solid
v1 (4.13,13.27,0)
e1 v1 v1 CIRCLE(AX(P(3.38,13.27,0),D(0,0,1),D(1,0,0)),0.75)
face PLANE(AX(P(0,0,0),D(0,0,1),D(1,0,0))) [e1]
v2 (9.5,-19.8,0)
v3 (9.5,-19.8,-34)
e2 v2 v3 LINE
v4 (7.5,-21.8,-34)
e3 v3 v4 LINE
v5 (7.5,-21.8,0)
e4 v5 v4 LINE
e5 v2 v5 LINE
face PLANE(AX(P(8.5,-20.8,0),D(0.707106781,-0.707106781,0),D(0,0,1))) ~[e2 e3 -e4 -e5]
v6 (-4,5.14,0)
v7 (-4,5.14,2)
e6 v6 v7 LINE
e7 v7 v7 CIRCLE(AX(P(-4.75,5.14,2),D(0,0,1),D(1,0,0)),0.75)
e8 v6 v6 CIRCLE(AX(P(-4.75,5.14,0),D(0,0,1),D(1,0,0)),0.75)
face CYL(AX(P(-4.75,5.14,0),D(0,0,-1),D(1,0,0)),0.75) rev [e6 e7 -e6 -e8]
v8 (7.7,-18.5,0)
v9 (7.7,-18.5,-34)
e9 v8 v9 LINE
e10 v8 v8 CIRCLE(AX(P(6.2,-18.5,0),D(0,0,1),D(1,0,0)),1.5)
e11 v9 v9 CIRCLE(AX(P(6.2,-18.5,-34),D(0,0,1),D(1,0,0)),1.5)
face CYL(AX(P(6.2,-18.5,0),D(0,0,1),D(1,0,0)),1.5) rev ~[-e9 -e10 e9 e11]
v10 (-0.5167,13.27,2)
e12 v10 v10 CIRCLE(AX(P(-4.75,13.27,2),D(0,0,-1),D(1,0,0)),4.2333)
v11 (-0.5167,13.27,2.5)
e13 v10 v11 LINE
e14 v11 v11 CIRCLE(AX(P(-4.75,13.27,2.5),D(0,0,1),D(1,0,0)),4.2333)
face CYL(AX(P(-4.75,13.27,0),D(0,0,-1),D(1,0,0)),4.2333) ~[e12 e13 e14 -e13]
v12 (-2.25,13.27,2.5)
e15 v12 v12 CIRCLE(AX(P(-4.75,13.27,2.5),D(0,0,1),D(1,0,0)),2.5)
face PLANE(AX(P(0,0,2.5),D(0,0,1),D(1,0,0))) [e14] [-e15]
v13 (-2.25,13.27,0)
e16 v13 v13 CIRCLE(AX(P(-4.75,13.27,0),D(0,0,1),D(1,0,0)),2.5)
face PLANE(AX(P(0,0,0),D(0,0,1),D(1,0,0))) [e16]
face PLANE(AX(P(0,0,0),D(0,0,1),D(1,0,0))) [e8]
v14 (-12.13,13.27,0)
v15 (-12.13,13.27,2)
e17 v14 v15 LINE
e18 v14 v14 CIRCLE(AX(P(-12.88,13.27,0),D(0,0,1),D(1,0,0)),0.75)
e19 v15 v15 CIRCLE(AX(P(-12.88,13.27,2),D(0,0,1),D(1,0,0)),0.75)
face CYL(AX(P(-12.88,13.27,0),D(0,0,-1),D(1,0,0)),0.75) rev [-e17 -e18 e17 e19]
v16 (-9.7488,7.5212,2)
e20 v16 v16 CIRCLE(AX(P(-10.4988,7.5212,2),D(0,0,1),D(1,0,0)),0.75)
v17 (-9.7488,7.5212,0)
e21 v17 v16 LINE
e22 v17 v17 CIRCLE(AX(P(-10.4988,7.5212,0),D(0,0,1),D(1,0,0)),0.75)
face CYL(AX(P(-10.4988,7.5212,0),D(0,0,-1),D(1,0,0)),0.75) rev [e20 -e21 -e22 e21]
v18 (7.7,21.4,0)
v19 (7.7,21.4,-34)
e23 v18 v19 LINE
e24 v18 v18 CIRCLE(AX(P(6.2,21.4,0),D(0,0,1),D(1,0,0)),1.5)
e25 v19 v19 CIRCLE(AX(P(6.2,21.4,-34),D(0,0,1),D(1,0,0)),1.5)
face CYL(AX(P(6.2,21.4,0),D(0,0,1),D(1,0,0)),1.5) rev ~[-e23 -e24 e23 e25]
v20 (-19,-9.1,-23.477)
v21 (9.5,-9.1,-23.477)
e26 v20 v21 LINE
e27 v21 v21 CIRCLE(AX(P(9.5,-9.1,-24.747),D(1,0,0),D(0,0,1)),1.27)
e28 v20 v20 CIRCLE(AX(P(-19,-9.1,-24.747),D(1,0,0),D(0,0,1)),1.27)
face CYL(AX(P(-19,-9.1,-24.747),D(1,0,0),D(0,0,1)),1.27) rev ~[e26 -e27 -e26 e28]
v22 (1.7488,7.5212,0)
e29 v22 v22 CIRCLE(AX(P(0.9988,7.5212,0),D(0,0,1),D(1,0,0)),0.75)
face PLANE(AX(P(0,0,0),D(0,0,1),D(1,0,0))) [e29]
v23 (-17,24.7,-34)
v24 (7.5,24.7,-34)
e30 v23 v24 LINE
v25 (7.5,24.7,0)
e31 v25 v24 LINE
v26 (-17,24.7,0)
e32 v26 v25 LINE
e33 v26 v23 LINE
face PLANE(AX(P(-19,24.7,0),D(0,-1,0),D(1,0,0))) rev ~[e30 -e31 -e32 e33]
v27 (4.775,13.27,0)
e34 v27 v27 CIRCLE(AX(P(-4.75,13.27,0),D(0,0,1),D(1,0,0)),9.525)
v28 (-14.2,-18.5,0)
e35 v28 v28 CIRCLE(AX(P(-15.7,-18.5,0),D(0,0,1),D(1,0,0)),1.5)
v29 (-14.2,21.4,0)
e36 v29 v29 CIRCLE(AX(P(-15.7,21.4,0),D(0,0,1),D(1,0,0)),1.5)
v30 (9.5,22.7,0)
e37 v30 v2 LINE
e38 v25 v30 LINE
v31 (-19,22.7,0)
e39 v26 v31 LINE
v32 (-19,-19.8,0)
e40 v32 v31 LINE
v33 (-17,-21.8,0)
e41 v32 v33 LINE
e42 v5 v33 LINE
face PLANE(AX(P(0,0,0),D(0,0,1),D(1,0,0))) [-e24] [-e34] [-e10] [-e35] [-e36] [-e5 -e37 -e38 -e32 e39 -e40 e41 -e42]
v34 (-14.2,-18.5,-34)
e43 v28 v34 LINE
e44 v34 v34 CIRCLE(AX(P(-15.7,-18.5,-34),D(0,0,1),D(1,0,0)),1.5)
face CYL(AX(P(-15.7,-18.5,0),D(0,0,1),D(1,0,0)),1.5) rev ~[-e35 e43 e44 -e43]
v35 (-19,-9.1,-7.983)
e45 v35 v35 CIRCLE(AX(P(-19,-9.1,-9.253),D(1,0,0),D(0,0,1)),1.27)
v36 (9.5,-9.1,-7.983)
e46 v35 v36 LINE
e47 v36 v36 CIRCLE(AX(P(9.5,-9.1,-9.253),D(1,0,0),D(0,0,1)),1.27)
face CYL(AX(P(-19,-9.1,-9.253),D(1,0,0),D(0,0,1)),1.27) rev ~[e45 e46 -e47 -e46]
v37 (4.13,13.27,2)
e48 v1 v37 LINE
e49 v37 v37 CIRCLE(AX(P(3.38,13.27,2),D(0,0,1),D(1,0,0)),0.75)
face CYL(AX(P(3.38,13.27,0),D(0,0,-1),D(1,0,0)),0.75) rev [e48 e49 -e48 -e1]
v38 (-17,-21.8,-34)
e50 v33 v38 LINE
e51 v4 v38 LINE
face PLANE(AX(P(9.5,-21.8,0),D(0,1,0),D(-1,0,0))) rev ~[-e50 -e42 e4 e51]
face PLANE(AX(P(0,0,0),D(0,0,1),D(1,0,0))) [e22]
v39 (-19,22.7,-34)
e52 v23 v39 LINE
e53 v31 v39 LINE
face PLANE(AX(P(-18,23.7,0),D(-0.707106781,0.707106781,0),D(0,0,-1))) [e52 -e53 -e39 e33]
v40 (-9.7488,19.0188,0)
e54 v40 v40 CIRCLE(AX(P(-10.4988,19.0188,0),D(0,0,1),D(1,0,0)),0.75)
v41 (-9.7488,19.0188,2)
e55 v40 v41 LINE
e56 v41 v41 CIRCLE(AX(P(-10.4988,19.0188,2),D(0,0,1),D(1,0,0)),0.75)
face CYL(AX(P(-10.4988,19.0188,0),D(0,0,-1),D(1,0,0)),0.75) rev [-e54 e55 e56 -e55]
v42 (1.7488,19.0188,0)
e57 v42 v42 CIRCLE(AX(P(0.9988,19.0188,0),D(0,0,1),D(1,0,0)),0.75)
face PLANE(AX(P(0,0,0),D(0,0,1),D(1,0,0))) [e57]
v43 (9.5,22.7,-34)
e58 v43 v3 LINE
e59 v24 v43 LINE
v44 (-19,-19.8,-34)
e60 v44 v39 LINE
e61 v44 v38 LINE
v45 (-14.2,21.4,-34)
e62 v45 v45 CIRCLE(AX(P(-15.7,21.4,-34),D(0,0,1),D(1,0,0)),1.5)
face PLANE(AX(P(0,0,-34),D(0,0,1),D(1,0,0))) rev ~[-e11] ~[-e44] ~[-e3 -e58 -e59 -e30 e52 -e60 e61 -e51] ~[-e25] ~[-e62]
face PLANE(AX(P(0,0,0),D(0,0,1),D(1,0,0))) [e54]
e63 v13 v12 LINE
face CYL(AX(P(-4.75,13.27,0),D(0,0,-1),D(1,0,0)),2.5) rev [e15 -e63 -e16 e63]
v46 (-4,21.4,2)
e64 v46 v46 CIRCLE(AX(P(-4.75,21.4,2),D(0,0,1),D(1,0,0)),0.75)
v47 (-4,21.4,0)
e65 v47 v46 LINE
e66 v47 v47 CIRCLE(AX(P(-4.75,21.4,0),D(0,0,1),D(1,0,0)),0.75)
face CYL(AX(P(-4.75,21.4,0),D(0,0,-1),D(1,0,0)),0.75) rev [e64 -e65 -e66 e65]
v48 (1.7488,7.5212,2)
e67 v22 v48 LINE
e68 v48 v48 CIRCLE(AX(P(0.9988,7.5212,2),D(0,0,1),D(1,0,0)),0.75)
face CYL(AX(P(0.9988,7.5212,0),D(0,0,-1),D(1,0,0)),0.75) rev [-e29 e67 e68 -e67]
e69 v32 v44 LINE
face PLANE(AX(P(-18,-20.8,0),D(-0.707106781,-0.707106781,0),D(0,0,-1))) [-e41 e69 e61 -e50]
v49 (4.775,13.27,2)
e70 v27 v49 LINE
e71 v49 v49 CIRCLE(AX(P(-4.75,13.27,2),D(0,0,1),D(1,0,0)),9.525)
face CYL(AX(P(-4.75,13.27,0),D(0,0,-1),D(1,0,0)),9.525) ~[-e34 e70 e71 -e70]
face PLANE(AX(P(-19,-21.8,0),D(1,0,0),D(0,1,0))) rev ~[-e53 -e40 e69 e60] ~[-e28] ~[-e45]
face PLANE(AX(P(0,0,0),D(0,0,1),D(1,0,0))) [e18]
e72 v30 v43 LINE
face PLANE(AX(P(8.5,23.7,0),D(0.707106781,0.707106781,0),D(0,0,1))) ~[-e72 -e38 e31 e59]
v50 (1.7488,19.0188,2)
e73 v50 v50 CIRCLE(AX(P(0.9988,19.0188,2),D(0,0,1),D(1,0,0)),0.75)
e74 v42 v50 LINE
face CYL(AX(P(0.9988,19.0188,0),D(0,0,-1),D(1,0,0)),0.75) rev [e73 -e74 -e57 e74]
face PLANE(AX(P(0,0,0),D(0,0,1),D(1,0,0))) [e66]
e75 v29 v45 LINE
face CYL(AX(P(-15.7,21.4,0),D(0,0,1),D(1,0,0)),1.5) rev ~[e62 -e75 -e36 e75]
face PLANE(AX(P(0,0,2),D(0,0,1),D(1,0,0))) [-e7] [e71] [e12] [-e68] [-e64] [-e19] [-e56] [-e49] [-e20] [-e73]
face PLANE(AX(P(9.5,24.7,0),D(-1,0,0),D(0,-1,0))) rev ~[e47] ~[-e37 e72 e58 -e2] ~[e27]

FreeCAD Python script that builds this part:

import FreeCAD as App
import Part
import Sketcher

V = App.Vector


def edges_at(feature, points):
    """Names of the edges that pass closest to the given points."""
    edges = feature.Shape.Edges
    near = lambda p: min(range(len(edges)), key=lambda i: edges[i].distToShape(Part.Vertex(*p))[0])
    return sorted({f"Edge{near(p) + 1}" for p in points})

doc = App.newDocument("Part")
body = doc.addObject("PartDesign::Body", "Body")

# Sketch on XY plane
sketch1 = body.newObject("Sketcher::SketchObject", "Sketch")
sketch1.AttachmentSupport = (doc.getObject("XY_Plane"), [""])
sketch1.MapMode = "FlatFace"
sketch1.addGeometry(Part.LineSegment(V(9.5, 24.7, 0), V(-19, 24.7, 0)), False)
sketch1.addGeometry(Part.LineSegment(V(-19, 24.7, 0), V(-19, -21.8, 0)), False)
sketch1.addGeometry(Part.LineSegment(V(-19, -21.8, 0), V(9.5, -21.8, 0)), False)
sketch1.addGeometry(Part.LineSegment(V(9.5, -21.8, 0), V(9.5, 24.7, 0)), False)
sketch1.addGeometry(Part.Circle(V(-15.7, -18.5, 0), V(0, 0, 1), 1.5), False)
sketch1.addGeometry(Part.Circle(V(6.2, -18.5, 0), V(0, 0, 1), 1.5), False)
sketch1.addGeometry(Part.Circle(V(-15.7, 21.4, 0), V(0, 0, 1), 1.5), False)
sketch1.addGeometry(Part.Circle(V(6.2, 21.4, 0), V(0, 0, 1), 1.5), False)
sketch1.addConstraint(Sketcher.Constraint("Coincident", 0, 2, 1, 1))
sketch1.addConstraint(Sketcher.Constraint("Coincident", 1, 2, 2, 1))
sketch1.addConstraint(Sketcher.Constraint("Coincident", 2, 2, 3, 1))
sketch1.addConstraint(Sketcher.Constraint("Coincident", 3, 2, 0, 1))
sketch1.addConstraint(Sketcher.Constraint("Horizontal", 0))
sketch1.addConstraint(Sketcher.Constraint("Vertical", 1))
sketch1.addConstraint(Sketcher.Constraint("Horizontal", 2))
sketch1.addConstraint(Sketcher.Constraint("Vertical", 3))
sketch1.addConstraint(Sketcher.Constraint("Equal", 4, 5))
sketch1.addConstraint(Sketcher.Constraint("Equal", 5, 6))
sketch1.addConstraint(Sketcher.Constraint("Equal", 6, 7))
sketch1.addConstraint(Sketcher.Constraint("Horizontal", 4, 3, 5, 3))
sketch1.addConstraint(Sketcher.Constraint("Horizontal", 6, 3, 7, 3))
sketch1.addConstraint(Sketcher.Constraint("Vertical", 4, 3, 6, 3))
sketch1.addConstraint(Sketcher.Constraint("Vertical", 5, 3, 7, 3))
sketch1.addConstraint(Sketcher.Constraint("Diameter", 4, 3.0))
sketch1.addConstraint(Sketcher.Constraint("DistanceX", 0, 2, 0, 1, 28.5))
sketch1.addConstraint(Sketcher.Constraint("DistanceY", 1, 2, 1, 1, 46.5))
sketch1.addConstraint(Sketcher.Constraint("DistanceX", 0, 2, 6, 3, 3.3))
sketch1.addConstraint(Sketcher.Constraint("DistanceY", 6, 3, 0, 2, 3.3))
sketch1.addConstraint(Sketcher.Constraint("DistanceY", 1, 2, 4, 3, 3.3))
sketch1.addConstraint(Sketcher.Constraint("DistanceX", 5, 3, 2, 2, 3.3))
sketch1.addConstraint(Sketcher.Constraint("DistanceX", 0, 2, -1, 1, 19.0))
sketch1.addConstraint(Sketcher.Constraint("DistanceY", 4, 3, -1, 1, 18.5))
pad1 = body.newObject("PartDesign::Pad", "Pad")
pad1.Profile = sketch1
pad1.Length = 34
pad1.Reversed = True
doc.recompute()

chamfer = body.newObject("PartDesign::Chamfer", "Chamfer")
chamfer.Base = (pad1, edges_at(pad1, [
    (9.5, 24.7, -17),
    (-19, 24.7, -17),
    (9.5, -21.8, -17),
    (-19, -21.8, -17),
]))
chamfer.Size = 2

# Sketch on XY plane
sketch2 = body.newObject("Sketcher::SketchObject", "Sketch001")
sketch2.AttachmentSupport = (doc.getObject("XY_Plane"), [""])
sketch2.MapMode = "FlatFace"
sketch2.addGeometry(Part.Circle(V(-4.8, 13.3, 0), V(0, 0, 1), 9.5), False)
sketch2.addGeometry(Part.Circle(V(-10.5, 7.5, 0), V(0, 0, 1), 0.8), False)
sketch2.addGeometry(Part.Circle(V(-12.9, 13.3, 0), V(0, 0, 1), 0.8), False)
sketch2.addGeometry(Part.Circle(V(-10.5, 19, 0), V(0, 0, 1), 0.8), False)
sketch2.addGeometry(Part.Circle(V(-4.8, 5.1, 0), V(0, 0, 1), 0.8), False)
sketch2.addGeometry(Part.Circle(V(1, 7.5, 0), V(0, 0, 1), 0.8), False)
sketch2.addGeometry(Part.Circle(V(-4.8, 21.4, 0), V(0, 0, 1), 0.8), False)
sketch2.addGeometry(Part.Circle(V(1, 19, 0), V(0, 0, 1), 0.8), False)
sketch2.addGeometry(Part.Circle(V(3.4, 13.3, 0), V(0, 0, 1), 0.8), False)
sketch2.addGeometry(Part.Circle(V(-4.8, 13.3, 0), V(0, 0, 1), 2.5), False)
sketch2.addConstraint(Sketcher.Constraint("Coincident", 9, 3, 0, 3))
sketch2.addConstraint(Sketcher.Constraint("Equal", 1, 2))
sketch2.addConstraint(Sketcher.Constraint("Equal", 2, 3))
sketch2.addConstraint(Sketcher.Constraint("Equal", 3, 4))
sketch2.addConstraint(Sketcher.Constraint("Equal", 4, 5))
sketch2.addConstraint(Sketcher.Constraint("Equal", 5, 6))
sketch2.addConstraint(Sketcher.Constraint("Equal", 6, 7))
sketch2.addConstraint(Sketcher.Constraint("Equal", 7, 8))
sketch2.addConstraint(Sketcher.Constraint("Horizontal", 0, 3, 2, 3))
sketch2.addConstraint(Sketcher.Constraint("Horizontal", 1, 3, 5, 3))
sketch2.addConstraint(Sketcher.Constraint("Horizontal", 3, 3, 7, 3))
sketch2.addConstraint(Sketcher.Constraint("Horizontal", 2, 3, 8, 3))
sketch2.addConstraint(Sketcher.Constraint("Vertical", 1, 3, 3, 3))
sketch2.addConstraint(Sketcher.Constraint("Vertical", 0, 3, 4, 3))
sketch2.addConstraint(Sketcher.Constraint("Vertical", 4, 3, 6, 3))
sketch2.addConstraint(Sketcher.Constraint("Vertical", 5, 3, 7, 3))
sketch2.addConstraint(Sketcher.Constraint("Diameter", 9, 5.0))
sketch2.addConstraint(Sketcher.Constraint("Diameter", 1, 1.5))
sketch2.addConstraint(Sketcher.Constraint("Diameter", 0, 19.05))
sketch2.addConstraint(Sketcher.Constraint("DistanceY", -1, 1, 6, 3, 21.4))
sketch2.addConstraint(Sketcher.Constraint("DistanceX", 0, 3, -1, 1, 4.75))
sketch2.addConstraint(Sketcher.Constraint("DistanceY", -1, 1, 0, 3, 13.27))
sketch2.addConstraint(Sketcher.Constraint("DistanceX", 2, 3, -1, 1, 12.88))
sketch2.addConstraint(Sketcher.Constraint("DistanceY", -1, 1, 4, 3, 5.14))
sketch2.addConstraint(Sketcher.Constraint("DistanceX", -1, 1, 8, 3, 3.38))
sketch2.addConstraint(Sketcher.Constraint("DistanceX", 1, 3, -1, 1, 10.4988))
sketch2.addConstraint(Sketcher.Constraint("DistanceY", -1, 1, 1, 3, 7.5212))
sketch2.addConstraint(Sketcher.Constraint("DistanceY", -1, 1, 3, 3, 19.0188))
sketch2.addConstraint(Sketcher.Constraint("DistanceX", -1, 1, 5, 3, 0.9988))
pad2 = body.newObject("PartDesign::Pad", "Pad001")
pad2.Profile = sketch2
pad2.Length = 2

# Sketch on XY plane
sketch3 = body.newObject("Sketcher::SketchObject", "Sketch002")
sketch3.AttachmentSupport = (doc.getObject("XY_Plane"), [""])
sketch3.MapMode = "FlatFace"
sketch3.addGeometry(Part.Circle(V(-4.8, 13.3, 0), V(0, 0, 1), 4.2), False)
sketch3.addGeometry(Part.Circle(V(-4.8, 13.3, 0), V(0, 0, 1), 2.5), False)
sketch3.addConstraint(Sketcher.Constraint("Coincident", 1, 3, 0, 3))
sketch3.addConstraint(Sketcher.Constraint("Diameter", 1, 5.0))
sketch3.addConstraint(Sketcher.Constraint("Diameter", 0, 8.4666))
sketch3.addConstraint(Sketcher.Constraint("DistanceX", 0, 3, -1, 1, 4.75))
sketch3.addConstraint(Sketcher.Constraint("DistanceY", -1, 1, 0, 3, 13.27))
pad3 = body.newObject("PartDesign::Pad", "Pad002")
pad3.Profile = sketch3
pad3.Length = 2.5

# Sketch on YZ plane
sketch4 = body.newObject("Sketcher::SketchObject", "Sketch003")
sketch4.AttachmentSupport = (doc.getObject("YZ_Plane"), [""])
sketch4.MapMode = "FlatFace"
sketch4.AttachmentOffset = App.Placement(V(0, 0, -19), App.Rotation())
sketch4.addGeometry(Part.Circle(V(-9.1, -9.3, 0), V(0, 0, 1), 1.3), False)
sketch4.addGeometry(Part.Circle(V(-9.1, -24.7, 0), V(0, 0, 1), 1.3), False)
sketch4.addConstraint(Sketcher.Constraint("Equal", 0, 1))
sketch4.addConstraint(Sketcher.Constraint("Vertical", 0, 3, 1, 3))
sketch4.addConstraint(Sketcher.Constraint("Diameter", 0, 2.54))
sketch4.addConstraint(Sketcher.Constraint("DistanceX", 0, 3, -1, 1, 9.1))
sketch4.addConstraint(Sketcher.Constraint("DistanceY", 0, 3, -1, 1, 9.253))
sketch4.addConstraint(Sketcher.Constraint("DistanceY", 1, 3, -1, 1, 24.747))
doc.recompute()
hole = body.newObject("PartDesign::Hole", "Hole")
hole.Profile = sketch4
hole.ThreadType = "None"
hole.Diameter = 2.54
hole.DepthType = "ThroughAll"
hole.Reversed = True

doc.recompute()
